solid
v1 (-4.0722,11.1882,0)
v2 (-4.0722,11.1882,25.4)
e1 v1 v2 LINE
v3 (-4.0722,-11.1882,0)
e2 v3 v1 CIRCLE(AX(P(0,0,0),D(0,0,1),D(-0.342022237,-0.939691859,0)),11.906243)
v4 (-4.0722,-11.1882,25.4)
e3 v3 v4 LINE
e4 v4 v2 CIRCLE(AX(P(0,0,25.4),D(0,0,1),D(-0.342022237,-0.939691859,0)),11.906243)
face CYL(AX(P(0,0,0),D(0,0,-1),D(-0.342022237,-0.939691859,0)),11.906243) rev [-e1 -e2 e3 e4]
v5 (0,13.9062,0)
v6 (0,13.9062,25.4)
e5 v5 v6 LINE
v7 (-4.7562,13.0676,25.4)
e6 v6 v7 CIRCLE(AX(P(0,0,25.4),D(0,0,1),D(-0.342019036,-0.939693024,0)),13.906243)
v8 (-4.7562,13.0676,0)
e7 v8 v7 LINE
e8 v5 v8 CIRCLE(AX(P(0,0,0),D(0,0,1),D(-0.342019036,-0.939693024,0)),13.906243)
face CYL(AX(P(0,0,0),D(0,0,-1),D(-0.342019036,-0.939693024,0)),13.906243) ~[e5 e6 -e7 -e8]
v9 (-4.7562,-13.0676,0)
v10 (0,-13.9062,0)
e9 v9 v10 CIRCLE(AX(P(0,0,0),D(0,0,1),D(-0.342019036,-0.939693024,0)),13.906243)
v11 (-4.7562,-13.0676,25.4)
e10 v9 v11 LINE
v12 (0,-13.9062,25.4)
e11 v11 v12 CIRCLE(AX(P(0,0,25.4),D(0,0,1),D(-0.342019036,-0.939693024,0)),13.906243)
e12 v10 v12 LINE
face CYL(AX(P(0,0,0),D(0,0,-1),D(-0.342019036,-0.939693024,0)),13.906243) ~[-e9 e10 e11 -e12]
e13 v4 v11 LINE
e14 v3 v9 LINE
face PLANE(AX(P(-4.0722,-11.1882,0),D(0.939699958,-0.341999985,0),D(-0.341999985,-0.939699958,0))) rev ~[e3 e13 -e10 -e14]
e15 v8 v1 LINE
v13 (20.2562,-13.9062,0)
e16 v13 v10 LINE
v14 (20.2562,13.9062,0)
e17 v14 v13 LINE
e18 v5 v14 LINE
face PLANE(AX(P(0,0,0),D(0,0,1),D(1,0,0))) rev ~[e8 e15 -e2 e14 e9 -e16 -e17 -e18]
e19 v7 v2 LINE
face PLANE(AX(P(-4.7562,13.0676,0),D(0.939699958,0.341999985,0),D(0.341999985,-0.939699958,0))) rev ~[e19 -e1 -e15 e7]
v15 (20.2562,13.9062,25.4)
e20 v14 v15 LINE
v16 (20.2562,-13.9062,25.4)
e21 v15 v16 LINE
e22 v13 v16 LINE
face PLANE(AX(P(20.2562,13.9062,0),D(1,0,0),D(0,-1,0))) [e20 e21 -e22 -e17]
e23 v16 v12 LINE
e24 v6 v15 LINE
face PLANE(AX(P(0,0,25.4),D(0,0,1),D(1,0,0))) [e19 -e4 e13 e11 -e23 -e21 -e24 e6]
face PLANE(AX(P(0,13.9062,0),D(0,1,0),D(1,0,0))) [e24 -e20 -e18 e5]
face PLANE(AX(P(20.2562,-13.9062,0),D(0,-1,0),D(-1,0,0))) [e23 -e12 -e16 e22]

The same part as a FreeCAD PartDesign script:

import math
import FreeCAD as App
import Part
import Sketcher

V = App.Vector
Q = App.Units.Quantity

doc = App.newDocument("Part")
body = doc.addObject("PartDesign::Body", "Body")

sketch1 = body.newObject("Sketcher::SketchObject", "Sketch")
sketch1.AttachmentSupport = (doc.getObject("XY_Plane"), [""])
sketch1.MapMode = "FlatFace"
sketch1.addGeometry(Part.ArcOfCircle(Part.Circle(V(0, 0, 0), V(0, 0, 1), 11.9), math.radians(-110), math.radians(110)), False)
sketch1.addGeometry(Part.LineSegment(V(-4.1, -11.2, 0), V(-4.8, -13.1, 0)), False)
sketch1.addGeometry(Part.ArcOfCircle(Part.Circle(V(0, 0, 0), V(0, 0, 1), 13.9), math.radians(-110), math.radians(-90)), False)
sketch1.addGeometry(Part.LineSegment(V(0, -13.9, 0), V(20.3, -13.9, 0)), False)
sketch1.addGeometry(Part.LineSegment(V(20.3, -13.9, 0), V(20.3, 13.9, 0)), False)
sketch1.addGeometry(Part.LineSegment(V(20.3, 13.9, 0), V(0, 13.9, 0)), False)
sketch1.addGeometry(Part.ArcOfCircle(Part.Circle(V(0, 0, 0), V(0, 0, 1), 13.9), math.radians(90), math.radians(110)), False)
sketch1.addGeometry(Part.LineSegment(V(-4.8, 13.1, 0), V(-4.1, 11.2, 0)), False)
sketch1.addConstraint(Sketcher.Constraint("Coincident", 0, 1, 1, 1))
sketch1.addConstraint(Sketcher.Constraint("Coincident", 1, 2, 2, 1))
sketch1.addConstraint(Sketcher.Constraint("Tangent", 2, 2, 3, 1))
sketch1.addConstraint(Sketcher.Constraint("Coincident", 3, 2, 4, 1))
sketch1.addConstraint(Sketcher.Constraint("Coincident", 4, 2, 5, 1))
sketch1.addConstraint(Sketcher.Constraint("Tangent", 5, 2, 6, 1))
sketch1.addConstraint(Sketcher.Constraint("Coincident", 6, 2, 7, 1))
sketch1.addConstraint(Sketcher.Constraint("Coincident", 7, 2, 0, 2))
sketch1.addConstraint(Sketcher.Constraint("Horizontal", 3))
sketch1.addConstraint(Sketcher.Constraint("Vertical", 4))
sketch1.addConstraint(Sketcher.Constraint("Horizontal", 5))
sketch1.addConstraint(Sketcher.Constraint("Coincident", 0, 3, -1, 1))
sketch1.addConstraint(Sketcher.Constraint("Coincident", 2, 3, -1, 1))
sketch1.addConstraint(Sketcher.Constraint("Coincident", 6, 3, -1, 1))
sketch1.addConstraint(Sketcher.Constraint("Equal", 2, 6))
sketch1.addConstraint(Sketcher.Constraint("Vertical", 1, 2, 6, 2))
sketch1.addConstraint(Sketcher.Constraint("Vertical", 0, 1, 7, 2))
sketch1.addConstraint(Sketcher.Constraint("Radius", 0, Q("0.468748 in")))
sketch1.addConstraint(Sketcher.Constraint("Radius", 2, Q("0.5475 in")))
sketch1.addConstraint(Sketcher.Constraint("DistanceX", 3, 1, 3, 2, Q("0.7975 in")))
sketch1.addConstraint(Sketcher.Constraint("DistanceY", 1, 2, 0, 1, Q("0.074 in")))
sketch1.addConstraint(Sketcher.Constraint("DistanceY", 2, 2, 0, 1, Q("0.107 in")))
pad1 = body.newObject("PartDesign::Pad", "Pad")
pad1.Profile = sketch1
pad1.Length = Q("1 in")

doc.recompute()
